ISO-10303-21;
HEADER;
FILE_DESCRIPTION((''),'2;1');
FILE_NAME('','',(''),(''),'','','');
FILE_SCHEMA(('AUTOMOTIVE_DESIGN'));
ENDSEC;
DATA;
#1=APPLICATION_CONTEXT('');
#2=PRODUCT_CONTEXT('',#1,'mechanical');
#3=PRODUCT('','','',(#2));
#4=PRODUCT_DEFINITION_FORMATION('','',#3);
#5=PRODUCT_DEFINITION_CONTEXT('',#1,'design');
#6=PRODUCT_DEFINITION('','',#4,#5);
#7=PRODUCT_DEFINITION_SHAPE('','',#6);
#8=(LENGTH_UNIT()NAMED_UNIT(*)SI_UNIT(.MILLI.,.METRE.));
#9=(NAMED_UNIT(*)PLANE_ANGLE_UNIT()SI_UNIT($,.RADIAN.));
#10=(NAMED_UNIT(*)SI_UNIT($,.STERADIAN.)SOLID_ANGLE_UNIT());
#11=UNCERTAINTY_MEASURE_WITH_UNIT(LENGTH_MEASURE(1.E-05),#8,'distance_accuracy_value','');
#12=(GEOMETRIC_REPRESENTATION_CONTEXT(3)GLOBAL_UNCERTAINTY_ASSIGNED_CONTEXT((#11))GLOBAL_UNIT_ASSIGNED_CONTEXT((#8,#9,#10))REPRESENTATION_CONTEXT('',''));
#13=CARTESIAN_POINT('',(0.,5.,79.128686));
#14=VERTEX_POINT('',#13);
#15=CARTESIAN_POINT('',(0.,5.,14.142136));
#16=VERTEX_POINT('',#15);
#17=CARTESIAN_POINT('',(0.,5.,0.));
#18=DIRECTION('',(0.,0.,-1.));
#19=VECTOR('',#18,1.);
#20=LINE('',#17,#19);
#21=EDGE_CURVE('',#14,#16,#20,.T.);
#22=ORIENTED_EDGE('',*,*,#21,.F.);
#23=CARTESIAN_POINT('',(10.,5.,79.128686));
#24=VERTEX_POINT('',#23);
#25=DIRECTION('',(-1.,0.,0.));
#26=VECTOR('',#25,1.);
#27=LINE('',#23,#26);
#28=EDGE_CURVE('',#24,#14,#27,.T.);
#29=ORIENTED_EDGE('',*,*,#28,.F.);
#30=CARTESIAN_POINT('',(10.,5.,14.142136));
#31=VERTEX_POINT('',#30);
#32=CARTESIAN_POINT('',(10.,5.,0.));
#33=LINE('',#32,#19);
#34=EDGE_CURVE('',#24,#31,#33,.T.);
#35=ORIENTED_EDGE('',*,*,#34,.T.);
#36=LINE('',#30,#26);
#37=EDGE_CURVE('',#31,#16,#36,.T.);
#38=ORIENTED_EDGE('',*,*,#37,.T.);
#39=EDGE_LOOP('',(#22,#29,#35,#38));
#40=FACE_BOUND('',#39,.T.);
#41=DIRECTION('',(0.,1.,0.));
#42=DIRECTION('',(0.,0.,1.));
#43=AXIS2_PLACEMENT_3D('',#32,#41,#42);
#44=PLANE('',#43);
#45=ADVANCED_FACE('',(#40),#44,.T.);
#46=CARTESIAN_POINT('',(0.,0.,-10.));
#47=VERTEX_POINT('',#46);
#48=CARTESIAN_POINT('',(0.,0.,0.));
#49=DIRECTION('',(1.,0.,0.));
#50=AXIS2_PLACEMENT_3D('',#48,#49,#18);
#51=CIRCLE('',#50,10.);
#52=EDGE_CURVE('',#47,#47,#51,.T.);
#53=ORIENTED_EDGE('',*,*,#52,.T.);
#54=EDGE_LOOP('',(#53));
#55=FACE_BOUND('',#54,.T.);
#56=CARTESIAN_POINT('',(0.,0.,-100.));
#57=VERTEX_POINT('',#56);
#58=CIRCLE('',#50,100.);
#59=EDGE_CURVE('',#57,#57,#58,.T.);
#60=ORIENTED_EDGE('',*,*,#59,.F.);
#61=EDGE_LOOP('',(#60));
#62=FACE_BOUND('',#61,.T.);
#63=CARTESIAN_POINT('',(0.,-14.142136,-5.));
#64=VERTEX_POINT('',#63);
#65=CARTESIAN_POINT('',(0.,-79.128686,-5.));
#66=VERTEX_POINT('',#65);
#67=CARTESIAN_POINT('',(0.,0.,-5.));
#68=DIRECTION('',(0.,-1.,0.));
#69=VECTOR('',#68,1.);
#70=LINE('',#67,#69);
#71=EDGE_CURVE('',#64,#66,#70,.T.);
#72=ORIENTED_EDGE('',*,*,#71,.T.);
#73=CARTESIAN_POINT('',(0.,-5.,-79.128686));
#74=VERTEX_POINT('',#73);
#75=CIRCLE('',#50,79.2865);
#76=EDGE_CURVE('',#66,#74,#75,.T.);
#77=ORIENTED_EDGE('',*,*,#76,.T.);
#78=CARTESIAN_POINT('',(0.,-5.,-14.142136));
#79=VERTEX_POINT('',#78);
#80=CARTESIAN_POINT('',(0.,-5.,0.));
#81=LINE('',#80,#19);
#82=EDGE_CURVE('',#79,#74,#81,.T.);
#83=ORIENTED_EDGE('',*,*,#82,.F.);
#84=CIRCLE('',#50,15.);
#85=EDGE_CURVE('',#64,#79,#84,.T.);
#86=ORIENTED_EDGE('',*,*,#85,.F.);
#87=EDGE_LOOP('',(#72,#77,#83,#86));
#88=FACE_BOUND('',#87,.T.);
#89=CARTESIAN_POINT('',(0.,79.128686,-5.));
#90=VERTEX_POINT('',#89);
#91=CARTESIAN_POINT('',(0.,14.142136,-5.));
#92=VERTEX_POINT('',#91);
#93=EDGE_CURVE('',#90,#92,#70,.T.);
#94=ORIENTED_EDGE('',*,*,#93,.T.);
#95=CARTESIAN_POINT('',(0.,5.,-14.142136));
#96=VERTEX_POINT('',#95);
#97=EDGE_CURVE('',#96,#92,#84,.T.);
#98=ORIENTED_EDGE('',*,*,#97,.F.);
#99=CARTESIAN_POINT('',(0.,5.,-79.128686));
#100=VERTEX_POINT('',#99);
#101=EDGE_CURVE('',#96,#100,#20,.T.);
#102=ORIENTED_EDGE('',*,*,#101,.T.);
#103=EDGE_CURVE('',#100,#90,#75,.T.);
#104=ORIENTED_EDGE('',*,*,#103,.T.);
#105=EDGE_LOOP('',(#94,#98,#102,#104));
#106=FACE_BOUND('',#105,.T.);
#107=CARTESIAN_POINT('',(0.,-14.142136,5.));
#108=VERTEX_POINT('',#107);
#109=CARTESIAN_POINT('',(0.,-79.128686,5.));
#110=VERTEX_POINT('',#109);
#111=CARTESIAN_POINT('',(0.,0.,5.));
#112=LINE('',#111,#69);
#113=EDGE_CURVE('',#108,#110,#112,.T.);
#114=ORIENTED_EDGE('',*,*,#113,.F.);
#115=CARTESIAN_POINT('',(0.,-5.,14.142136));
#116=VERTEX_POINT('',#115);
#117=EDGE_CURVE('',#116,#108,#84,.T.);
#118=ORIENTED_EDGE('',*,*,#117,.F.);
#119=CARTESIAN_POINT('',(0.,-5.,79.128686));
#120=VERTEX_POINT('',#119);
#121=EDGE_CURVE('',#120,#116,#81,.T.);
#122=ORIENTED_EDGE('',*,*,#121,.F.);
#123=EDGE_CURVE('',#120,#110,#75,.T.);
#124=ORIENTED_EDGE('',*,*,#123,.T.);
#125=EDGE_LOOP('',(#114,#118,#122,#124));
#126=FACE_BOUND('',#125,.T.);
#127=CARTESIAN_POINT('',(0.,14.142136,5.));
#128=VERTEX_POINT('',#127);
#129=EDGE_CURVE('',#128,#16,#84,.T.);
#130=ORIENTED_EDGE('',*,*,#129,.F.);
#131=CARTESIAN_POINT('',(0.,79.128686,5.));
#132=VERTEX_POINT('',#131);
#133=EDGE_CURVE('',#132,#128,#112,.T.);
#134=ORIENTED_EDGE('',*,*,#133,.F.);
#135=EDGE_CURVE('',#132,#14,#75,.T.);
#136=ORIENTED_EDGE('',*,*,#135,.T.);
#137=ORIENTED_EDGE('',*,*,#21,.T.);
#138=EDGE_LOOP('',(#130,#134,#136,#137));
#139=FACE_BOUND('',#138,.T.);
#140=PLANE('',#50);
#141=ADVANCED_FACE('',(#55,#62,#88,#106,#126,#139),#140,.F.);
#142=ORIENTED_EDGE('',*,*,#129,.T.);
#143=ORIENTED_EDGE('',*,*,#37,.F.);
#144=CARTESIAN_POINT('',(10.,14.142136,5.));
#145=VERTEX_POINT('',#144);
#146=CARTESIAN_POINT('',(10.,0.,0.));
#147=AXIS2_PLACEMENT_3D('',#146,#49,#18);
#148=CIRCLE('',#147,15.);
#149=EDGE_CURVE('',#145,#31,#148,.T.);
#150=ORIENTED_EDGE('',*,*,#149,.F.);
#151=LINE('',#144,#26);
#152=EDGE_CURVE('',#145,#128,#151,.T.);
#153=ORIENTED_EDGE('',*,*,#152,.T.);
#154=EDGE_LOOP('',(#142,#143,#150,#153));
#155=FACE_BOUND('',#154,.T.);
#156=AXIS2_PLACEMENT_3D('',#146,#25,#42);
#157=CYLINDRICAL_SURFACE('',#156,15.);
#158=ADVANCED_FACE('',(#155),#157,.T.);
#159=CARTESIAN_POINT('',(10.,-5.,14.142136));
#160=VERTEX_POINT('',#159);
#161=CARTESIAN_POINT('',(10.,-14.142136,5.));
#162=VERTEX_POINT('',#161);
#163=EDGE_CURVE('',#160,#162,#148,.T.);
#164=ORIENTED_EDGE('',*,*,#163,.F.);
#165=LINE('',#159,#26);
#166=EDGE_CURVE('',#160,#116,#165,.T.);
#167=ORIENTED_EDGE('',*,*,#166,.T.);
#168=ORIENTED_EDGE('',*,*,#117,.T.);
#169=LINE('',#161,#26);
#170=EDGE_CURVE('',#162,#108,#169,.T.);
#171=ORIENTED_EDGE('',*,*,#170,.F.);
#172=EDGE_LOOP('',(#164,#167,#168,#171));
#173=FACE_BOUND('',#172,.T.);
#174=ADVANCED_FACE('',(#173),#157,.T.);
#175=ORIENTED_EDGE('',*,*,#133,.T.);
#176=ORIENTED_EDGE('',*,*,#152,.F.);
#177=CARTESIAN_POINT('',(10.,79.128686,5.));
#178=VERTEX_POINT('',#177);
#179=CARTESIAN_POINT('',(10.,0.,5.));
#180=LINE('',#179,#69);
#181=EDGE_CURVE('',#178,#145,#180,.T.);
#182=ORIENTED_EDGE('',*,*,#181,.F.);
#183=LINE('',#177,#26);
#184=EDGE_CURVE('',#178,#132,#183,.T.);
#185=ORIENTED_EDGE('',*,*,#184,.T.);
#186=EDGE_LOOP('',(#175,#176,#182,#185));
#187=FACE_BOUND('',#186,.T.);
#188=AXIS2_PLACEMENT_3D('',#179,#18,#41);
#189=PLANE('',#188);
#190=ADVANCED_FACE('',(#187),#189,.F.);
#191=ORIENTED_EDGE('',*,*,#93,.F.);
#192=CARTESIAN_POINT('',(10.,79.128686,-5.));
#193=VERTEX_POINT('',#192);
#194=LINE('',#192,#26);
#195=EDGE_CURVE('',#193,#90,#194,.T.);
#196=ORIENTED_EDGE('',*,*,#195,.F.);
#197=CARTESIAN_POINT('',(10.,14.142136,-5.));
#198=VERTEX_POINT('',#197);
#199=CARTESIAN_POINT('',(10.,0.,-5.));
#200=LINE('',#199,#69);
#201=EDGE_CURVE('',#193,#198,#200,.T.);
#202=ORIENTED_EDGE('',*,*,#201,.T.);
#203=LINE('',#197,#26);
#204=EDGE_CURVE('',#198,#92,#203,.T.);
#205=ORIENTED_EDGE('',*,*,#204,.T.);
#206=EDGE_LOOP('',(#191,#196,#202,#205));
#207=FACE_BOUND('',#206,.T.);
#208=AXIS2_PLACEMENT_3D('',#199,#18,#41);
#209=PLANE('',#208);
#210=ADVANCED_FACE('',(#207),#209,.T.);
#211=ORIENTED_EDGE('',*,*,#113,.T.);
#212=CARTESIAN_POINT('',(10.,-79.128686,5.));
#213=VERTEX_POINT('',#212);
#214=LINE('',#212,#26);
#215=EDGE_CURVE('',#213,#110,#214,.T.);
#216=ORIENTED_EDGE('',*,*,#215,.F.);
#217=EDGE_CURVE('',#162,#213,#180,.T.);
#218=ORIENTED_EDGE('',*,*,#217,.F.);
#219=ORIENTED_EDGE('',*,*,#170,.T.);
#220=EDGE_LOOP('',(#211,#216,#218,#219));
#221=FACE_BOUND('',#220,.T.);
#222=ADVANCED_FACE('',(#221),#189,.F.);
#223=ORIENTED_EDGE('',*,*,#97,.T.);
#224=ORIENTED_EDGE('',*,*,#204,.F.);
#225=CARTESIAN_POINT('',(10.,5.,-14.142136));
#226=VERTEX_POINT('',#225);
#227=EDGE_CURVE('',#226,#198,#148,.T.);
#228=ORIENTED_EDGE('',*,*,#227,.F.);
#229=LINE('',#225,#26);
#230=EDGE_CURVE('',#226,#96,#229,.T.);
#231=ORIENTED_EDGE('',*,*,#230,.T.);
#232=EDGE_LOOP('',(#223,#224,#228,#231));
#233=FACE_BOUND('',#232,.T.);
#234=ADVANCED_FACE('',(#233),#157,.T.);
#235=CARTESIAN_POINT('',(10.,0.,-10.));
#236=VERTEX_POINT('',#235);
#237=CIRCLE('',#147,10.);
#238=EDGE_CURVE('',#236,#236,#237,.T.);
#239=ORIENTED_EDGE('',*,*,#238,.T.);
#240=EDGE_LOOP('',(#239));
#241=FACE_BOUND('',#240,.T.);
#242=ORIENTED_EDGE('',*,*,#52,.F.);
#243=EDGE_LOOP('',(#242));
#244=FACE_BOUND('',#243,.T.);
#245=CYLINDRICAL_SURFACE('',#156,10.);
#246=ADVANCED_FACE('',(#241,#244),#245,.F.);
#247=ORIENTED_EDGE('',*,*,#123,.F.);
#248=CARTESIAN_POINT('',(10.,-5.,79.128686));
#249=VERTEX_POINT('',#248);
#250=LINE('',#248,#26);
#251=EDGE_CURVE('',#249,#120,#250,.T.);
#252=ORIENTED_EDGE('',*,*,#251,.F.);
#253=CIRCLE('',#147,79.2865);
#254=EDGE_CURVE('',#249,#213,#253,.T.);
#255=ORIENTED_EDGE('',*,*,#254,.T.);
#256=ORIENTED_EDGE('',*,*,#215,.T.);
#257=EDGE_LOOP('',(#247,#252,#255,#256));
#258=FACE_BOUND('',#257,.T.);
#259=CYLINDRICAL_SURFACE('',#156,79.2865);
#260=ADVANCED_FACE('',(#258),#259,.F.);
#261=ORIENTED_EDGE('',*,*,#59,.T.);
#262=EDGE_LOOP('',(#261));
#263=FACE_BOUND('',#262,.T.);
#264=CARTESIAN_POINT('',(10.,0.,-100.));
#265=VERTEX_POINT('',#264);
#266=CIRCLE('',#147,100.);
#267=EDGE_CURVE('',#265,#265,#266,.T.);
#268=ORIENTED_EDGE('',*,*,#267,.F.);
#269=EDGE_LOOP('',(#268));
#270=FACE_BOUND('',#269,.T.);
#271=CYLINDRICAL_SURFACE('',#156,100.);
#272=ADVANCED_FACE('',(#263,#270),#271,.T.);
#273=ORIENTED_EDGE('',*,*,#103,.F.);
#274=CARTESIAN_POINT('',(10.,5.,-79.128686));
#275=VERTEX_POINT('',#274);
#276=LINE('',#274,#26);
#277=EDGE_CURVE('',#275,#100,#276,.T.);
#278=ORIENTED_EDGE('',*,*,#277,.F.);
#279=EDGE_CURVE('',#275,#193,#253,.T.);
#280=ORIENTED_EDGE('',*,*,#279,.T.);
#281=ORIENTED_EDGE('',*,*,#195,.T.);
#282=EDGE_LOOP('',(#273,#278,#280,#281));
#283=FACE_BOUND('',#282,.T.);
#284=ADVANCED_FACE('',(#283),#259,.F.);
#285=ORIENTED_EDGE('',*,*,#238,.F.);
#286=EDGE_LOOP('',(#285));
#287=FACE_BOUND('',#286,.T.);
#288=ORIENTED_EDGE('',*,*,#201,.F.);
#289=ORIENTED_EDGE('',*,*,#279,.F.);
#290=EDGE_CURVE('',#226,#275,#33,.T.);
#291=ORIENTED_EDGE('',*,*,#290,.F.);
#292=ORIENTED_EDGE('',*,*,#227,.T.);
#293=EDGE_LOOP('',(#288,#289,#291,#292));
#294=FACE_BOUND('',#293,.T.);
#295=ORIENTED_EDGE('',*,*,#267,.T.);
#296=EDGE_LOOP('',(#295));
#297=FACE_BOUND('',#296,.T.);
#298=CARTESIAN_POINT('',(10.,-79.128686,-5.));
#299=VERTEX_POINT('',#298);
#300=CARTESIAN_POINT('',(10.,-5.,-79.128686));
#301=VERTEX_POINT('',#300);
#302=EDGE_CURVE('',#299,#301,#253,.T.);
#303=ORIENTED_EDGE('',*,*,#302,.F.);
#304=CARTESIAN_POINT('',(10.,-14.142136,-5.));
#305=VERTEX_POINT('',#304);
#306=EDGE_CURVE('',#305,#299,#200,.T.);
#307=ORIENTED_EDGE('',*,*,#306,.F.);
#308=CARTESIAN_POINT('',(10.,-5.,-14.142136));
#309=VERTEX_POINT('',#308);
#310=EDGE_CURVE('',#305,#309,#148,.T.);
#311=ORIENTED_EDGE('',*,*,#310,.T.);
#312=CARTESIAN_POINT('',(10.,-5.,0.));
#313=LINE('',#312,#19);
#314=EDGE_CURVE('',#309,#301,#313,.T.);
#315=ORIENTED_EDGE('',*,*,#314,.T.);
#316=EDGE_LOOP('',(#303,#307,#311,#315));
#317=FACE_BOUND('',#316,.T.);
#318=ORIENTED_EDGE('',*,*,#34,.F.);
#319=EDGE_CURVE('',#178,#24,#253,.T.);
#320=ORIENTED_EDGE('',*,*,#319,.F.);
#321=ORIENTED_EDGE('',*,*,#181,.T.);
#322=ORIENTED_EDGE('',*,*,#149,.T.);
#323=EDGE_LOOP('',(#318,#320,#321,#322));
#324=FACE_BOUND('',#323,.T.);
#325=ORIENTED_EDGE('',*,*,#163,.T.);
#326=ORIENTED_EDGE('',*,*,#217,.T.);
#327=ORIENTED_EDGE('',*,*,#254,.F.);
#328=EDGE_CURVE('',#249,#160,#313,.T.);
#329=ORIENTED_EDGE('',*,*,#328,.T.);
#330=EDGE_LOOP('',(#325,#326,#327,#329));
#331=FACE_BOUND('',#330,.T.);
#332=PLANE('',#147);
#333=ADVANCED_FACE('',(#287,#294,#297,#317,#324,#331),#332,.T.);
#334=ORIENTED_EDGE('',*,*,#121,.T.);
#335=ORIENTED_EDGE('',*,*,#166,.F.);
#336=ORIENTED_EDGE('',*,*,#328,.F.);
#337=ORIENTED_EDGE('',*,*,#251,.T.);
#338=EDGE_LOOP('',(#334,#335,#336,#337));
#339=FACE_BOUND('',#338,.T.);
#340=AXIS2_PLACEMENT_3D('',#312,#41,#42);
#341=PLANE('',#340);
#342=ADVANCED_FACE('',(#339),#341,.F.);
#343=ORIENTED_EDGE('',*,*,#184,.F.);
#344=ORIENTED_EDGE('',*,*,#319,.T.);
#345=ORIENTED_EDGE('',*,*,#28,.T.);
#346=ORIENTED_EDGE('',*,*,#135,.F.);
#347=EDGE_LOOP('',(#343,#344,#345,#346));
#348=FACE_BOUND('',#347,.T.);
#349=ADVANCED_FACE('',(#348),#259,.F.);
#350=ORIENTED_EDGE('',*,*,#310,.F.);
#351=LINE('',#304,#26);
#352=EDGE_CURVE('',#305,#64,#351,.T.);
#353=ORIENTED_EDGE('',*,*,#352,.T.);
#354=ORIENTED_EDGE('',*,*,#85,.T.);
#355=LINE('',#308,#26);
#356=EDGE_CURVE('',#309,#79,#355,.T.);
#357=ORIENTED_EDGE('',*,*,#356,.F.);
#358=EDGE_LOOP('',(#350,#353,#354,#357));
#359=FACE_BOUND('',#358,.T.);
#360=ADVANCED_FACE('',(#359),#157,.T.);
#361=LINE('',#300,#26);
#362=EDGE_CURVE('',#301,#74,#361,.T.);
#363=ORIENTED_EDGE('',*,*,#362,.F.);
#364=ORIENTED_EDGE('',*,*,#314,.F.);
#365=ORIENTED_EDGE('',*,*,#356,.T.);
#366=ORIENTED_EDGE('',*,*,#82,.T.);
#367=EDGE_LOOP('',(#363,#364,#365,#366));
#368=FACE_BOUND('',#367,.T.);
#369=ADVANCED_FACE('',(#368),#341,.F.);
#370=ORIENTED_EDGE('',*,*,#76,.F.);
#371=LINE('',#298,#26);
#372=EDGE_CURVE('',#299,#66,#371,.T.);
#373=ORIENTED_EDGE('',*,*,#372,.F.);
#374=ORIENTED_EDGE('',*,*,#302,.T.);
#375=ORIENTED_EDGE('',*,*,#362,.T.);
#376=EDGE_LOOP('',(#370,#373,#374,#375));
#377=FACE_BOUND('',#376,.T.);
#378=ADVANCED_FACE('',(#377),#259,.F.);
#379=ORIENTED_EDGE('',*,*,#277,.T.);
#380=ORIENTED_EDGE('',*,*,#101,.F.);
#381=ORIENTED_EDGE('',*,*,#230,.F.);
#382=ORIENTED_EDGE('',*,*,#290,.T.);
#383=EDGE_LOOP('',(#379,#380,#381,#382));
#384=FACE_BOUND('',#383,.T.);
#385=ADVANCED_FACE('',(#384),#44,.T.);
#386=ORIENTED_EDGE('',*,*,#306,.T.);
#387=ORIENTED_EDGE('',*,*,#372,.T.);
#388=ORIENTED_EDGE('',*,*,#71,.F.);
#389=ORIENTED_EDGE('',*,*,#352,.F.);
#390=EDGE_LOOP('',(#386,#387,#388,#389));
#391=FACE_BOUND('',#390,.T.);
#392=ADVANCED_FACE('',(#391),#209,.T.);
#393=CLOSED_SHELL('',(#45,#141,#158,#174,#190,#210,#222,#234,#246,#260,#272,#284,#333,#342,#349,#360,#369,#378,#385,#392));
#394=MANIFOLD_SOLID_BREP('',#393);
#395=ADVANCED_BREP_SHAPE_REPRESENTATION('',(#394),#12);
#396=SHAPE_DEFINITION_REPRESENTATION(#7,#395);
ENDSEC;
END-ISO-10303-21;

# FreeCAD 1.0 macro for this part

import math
import FreeCAD as App
import Part
import Sketcher

V = App.Vector
Q = App.Units.Quantity

doc = App.newDocument("Part")
params = doc.addObject("Spreadsheet::Sheet", "Params")
for row, (alias, value) in enumerate([
    ("sketch1_diameter", "200 mm"),
    ("sketch1_diameter2", "20 mm"),
    ("sketch1_radius", "15 mm"),
    ("pad1_length", "10 mm"),
], start=1):
    params.set(f"A{row}", alias)
    params.set(f"B{row}", "=" + value)
    params.setAlias(f"B{row}", alias)

body = doc.addObject("PartDesign::Body", "Body")

# Sketch on YZ plane
sketch1 = doc.addObject("Sketcher::SketchObject", "Sketch")
body.addObject(sketch1)
sketch1.AttachmentSupport = (doc.YZ_Plane, [""])
sketch1.MapMode = "FlatFace"
sketch1.addGeometry(Part.Circle(V(0, 0, 0), V(0, 0, 1), 100), False)
sketch1.addGeometry(Part.ArcOfCircle(Part.Circle(V(0, 0, 0), V(0, 0, 1), 79.2865), math.radians(93.615611), math.radians(176.384389)), False)
sketch1.addGeometry(Part.LineSegment(V(-5, 79.128686, 0), V(-5, 14.142136, 0)), False)
sketch1.addGeometry(Part.ArcOfCircle(Part.Circle(V(0, 0, 0), V(0, 0, 1), 15), math.radians(109.471221), math.radians(160.528779)), False)
sketch1.addGeometry(Part.LineSegment(V(-14.142136, 5, 0), V(-79.128686, 5, 0)), False)
sketch1.addGeometry(Part.LineSegment(V(-5, -14.142136, 0), V(-5, -79.128686, 0)), False)
sketch1.addGeometry(Part.ArcOfCircle(Part.Circle(V(0, 0, 0), V(0, 0, 1), 79.2865), math.radians(-176.384389), math.radians(-93.615611)), False)
sketch1.addGeometry(Part.LineSegment(V(-79.128686, -5, 0), V(-14.142136, -5, 0)), False)
sketch1.addGeometry(Part.ArcOfCircle(Part.Circle(V(0, 0, 0), V(0, 0, 1), 15), math.radians(-160.528779), math.radians(-109.471221)), False)
sketch1.addGeometry(Part.Circle(V(0, 0, 0), V(0, 0, 1), 10), False)
sketch1.addGeometry(Part.LineSegment(V(5, 14.142136, 0), V(5, 79.128686, 0)), False)
sketch1.addGeometry(Part.ArcOfCircle(Part.Circle(V(0, 0, 0), V(0, 0, 1), 79.2865), math.radians(3.615611), math.radians(86.384389)), False)
sketch1.addGeometry(Part.LineSegment(V(79.128686, 5, 0), V(14.142136, 5, 0)), False)
sketch1.addGeometry(Part.ArcOfCircle(Part.Circle(V(0, 0, 0), V(0, 0, 1), 15), math.radians(19.471221), math.radians(70.528779)), False)
sketch1.addGeometry(Part.LineSegment(V(14.142136, -5, 0), V(79.128686, -5, 0)), False)
sketch1.addGeometry(Part.ArcOfCircle(Part.Circle(V(0, 0, 0), V(0, 0, 1), 79.2865), math.radians(-86.384389), math.radians(-3.615611)), False)
sketch1.addGeometry(Part.LineSegment(V(5, -79.128686, 0), V(5, -14.142136, 0)), False)
sketch1.addGeometry(Part.ArcOfCircle(Part.Circle(V(0, 0, 0), V(0, 0, 1), 15), math.radians(-70.528779), math.radians(-19.471221)), False)
sketch1.addConstraint(Sketcher.Constraint("Coincident", 1, 1, 2, 1))
sketch1.addConstraint(Sketcher.Constraint("Coincident", 2, 2, 3, 1))
sketch1.addConstraint(Sketcher.Constraint("Coincident", 3, 2, 4, 1))
sketch1.addConstraint(Sketcher.Constraint("Coincident", 4, 2, 1, 2))
sketch1.addConstraint(Sketcher.Constraint("Coincident", 5, 2, 6, 2))
sketch1.addConstraint(Sketcher.Constraint("Coincident", 6, 1, 7, 1))
sketch1.addConstraint(Sketcher.Constraint("Coincident", 7, 2, 8, 1))
sketch1.addConstraint(Sketcher.Constraint("Coincident", 8, 2, 5, 1))
sketch1.addConstraint(Sketcher.Constraint("Coincident", 10, 2, 11, 2))
sketch1.addConstraint(Sketcher.Constraint("Coincident", 11, 1, 12, 1))
sketch1.addConstraint(Sketcher.Constraint("Coincident", 12, 2, 13, 1))
sketch1.addConstraint(Sketcher.Constraint("Coincident", 13, 2, 10, 1))
sketch1.addConstraint(Sketcher.Constraint("Coincident", 14, 2, 15, 2))
sketch1.addConstraint(Sketcher.Constraint("Coincident", 15, 1, 16, 1))
sketch1.addConstraint(Sketcher.Constraint("Coincident", 16, 2, 17, 1))
sketch1.addConstraint(Sketcher.Constraint("Coincident", 17, 2, 14, 1))
sketch1.addConstraint(Sketcher.Constraint("Vertical", 2))
sketch1.addConstraint(Sketcher.Constraint("Horizontal", 4))
sketch1.addConstraint(Sketcher.Constraint("Vertical", 5))
sketch1.addConstraint(Sketcher.Constraint("Horizontal", 7))
sketch1.addConstraint(Sketcher.Constraint("Vertical", 10))
sketch1.addConstraint(Sketcher.Constraint("Horizontal", 12))
sketch1.addConstraint(Sketcher.Constraint("Horizontal", 14))
sketch1.addConstraint(Sketcher.Constraint("Vertical", 16))
sketch1.addConstraint(Sketcher.Constraint("Coincident", 0, 3, -1, 1))
sketch1.addConstraint(Sketcher.Constraint("Coincident", 1, 3, -1, 1))
sketch1.addConstraint(Sketcher.Constraint("Coincident", 3, 3, -1, 1))
sketch1.addConstraint(Sketcher.Constraint("Coincident", 6, 3, -1, 1))
sketch1.addConstraint(Sketcher.Constraint("Coincident", 8, 3, -1, 1))
sketch1.addConstraint(Sketcher.Constraint("Coincident", 9, 3, -1, 1))
sketch1.addConstraint(Sketcher.Constraint("Coincident", 11, 3, -1, 1))
sketch1.addConstraint(Sketcher.Constraint("Coincident", 13, 3, -1, 1))
sketch1.addConstraint(Sketcher.Constraint("Coincident", 15, 3, -1, 1))
sketch1.addConstraint(Sketcher.Constraint("Coincident", 17, 3, -1, 1))
sketch1.addConstraint(Sketcher.Constraint("Equal", 1, 6))
sketch1.addConstraint(Sketcher.Constraint("Equal", 3, 8))
sketch1.addConstraint(Sketcher.Constraint("Equal", 6, 11))
sketch1.addConstraint(Sketcher.Constraint("Equal", 8, 13))
sketch1.addConstraint(Sketcher.Constraint("Equal", 11, 15))
sketch1.addConstraint(Sketcher.Constraint("Equal", 13, 17))
sketch1.addConstraint(Sketcher.Constraint("Horizontal", 1, 1, 10, 2))
sketch1.addConstraint(Sketcher.Constraint("Horizontal", 4, 2, 11, 1))
sketch1.addConstraint(Sketcher.Constraint("Horizontal", 7, 2, 14, 2))
sketch1.addConstraint(Sketcher.Constraint("Horizontal", 5, 2, 15, 1))
sketch1.addConstraint(Sketcher.Constraint("Vertical", 2, 2, 5, 2))
sketch1.addConstraint(Sketcher.Constraint("Vertical", 4, 2, 6, 1))
sketch1.addConstraint(Sketcher.Constraint("Equal", 14, 2))
sketch1.addConstraint(Sketcher.Constraint("Diameter", 0, Q("200 mm")))
sketch1.addConstraint(Sketcher.Constraint("Diameter", 9, Q("20 mm")))
sketch1.addConstraint(Sketcher.Constraint("Radius", 3, Q("15 mm")))
sketch1.addConstraint(Sketcher.Constraint("DistanceX", 1, 1, -1, 1, Q("5 mm")))
sketch1.addConstraint(Sketcher.Constraint("Radius", 1, Q("79.2865 mm")))
sketch1.setExpression("Constraints[47]", "Params.sketch1_diameter")
sketch1.setExpression("Constraints[48]", "Params.sketch1_diameter2")
sketch1.setExpression("Constraints[49]", "Params.sketch1_radius")
pad1 = doc.addObject("PartDesign::Pad", "Pad")
body.addObject(pad1)
pad1.Profile = sketch1
pad1.setExpression("Length", "Params.pad1_length")

doc.recompute()
